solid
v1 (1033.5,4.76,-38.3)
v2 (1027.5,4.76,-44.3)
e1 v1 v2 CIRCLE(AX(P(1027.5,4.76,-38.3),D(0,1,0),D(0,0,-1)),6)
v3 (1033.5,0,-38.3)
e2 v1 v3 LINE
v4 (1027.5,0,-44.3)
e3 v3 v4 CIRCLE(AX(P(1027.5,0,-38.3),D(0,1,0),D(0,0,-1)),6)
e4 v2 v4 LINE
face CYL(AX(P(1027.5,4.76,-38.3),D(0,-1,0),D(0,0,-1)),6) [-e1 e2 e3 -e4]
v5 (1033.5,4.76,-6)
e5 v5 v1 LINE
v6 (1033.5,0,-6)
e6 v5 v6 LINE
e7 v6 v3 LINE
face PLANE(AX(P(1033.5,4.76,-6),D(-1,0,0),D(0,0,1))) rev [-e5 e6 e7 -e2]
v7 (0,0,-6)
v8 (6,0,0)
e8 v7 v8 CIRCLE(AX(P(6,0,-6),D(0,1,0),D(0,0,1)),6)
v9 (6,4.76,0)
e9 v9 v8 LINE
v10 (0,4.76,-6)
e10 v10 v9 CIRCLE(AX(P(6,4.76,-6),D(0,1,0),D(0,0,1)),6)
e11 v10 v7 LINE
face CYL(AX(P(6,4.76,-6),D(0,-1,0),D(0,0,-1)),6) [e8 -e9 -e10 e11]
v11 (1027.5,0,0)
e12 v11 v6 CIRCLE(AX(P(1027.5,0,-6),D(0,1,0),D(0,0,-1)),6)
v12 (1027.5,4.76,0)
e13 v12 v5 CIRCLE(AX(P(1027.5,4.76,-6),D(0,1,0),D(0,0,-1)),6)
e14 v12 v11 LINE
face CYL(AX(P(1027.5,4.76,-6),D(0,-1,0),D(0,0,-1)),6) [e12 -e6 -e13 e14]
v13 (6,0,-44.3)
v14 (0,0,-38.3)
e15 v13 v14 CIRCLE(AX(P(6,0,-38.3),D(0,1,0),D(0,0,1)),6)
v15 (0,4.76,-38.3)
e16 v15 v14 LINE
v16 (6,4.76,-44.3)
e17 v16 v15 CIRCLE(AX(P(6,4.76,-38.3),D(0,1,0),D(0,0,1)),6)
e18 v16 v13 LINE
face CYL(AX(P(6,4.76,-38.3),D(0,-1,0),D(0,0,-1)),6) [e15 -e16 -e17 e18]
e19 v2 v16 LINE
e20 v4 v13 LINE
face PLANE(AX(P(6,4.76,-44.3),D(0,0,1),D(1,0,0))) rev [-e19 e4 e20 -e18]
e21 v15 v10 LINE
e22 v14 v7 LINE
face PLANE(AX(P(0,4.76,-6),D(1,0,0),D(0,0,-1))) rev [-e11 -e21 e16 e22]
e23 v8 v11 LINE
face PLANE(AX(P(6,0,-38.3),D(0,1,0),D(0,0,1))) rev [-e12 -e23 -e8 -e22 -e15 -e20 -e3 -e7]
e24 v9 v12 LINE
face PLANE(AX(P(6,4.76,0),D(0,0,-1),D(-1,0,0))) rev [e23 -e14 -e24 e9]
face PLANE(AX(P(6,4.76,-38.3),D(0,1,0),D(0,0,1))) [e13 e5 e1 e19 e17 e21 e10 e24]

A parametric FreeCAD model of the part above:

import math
import FreeCAD as App
import Part
import Sketcher
Q = App.Units.Quantity

doc = App.newDocument("Part")
body = doc.addObject("PartDesign::Body", "Body")

# Sketch on XZ plane
sketch1 = body.newObject("Sketcher::SketchObject", "Sketch")
sketch1.AttachmentSupport = (doc.getObject("XZ_Plane"), [""])
sketch1.MapMode = "FlatFace"
sketch1.addGeometry(Part.LineSegment(App.Vector(6, 0, 0), App.Vector(1028, 0, 0)), False)
sketch1.addGeometry(Part.ArcOfCircle(Part.Circle(App.Vector(1028, -6, 0), App.Vector(0, 0, 1), 6), math.radians(0), math.radians(90)), False)
sketch1.addGeometry(Part.LineSegment(App.Vector(1034, -6, 0), App.Vector(1034, -38, 0)), False)
sketch1.addGeometry(Part.ArcOfCircle(Part.Circle(App.Vector(1028, -38, 0), App.Vector(0, 0, 1), 6), math.radians(-90), math.radians(0)), False)
sketch1.addGeometry(Part.LineSegment(App.Vector(1028, -44, 0), App.Vector(6, -44, 0)), False)
sketch1.addGeometry(Part.ArcOfCircle(Part.Circle(App.Vector(6, -38, 0), App.Vector(0, 0, 1), 6), math.radians(180), math.radians(270)), False)
sketch1.addGeometry(Part.LineSegment(App.Vector(0, -38, 0), App.Vector(0, -6, 0)), False)
sketch1.addGeometry(Part.ArcOfCircle(Part.Circle(App.Vector(6, -6, 0), App.Vector(0, 0, 1), 6), math.radians(90), math.radians(180)), False)
sketch1.addConstraint(Sketcher.Constraint("Tangent", 0, 2, 1, 2))
sketch1.addConstraint(Sketcher.Constraint("Tangent", 1, 1, 2, 1))
sketch1.addConstraint(Sketcher.Constraint("Tangent", 2, 2, 3, 2))
sketch1.addConstraint(Sketcher.Constraint("Tangent", 3, 1, 4, 1))
sketch1.addConstraint(Sketcher.Constraint("Tangent", 4, 2, 5, 2))
sketch1.addConstraint(Sketcher.Constraint("Tangent", 5, 1, 6, 1))
sketch1.addConstraint(Sketcher.Constraint("Tangent", 6, 2, 7, 2))
sketch1.addConstraint(Sketcher.Constraint("Tangent", 7, 1, 0, 1))
sketch1.addConstraint(Sketcher.Constraint("Horizontal", 0))
sketch1.addConstraint(Sketcher.Constraint("Vertical", 2))
sketch1.addConstraint(Sketcher.Constraint("Horizontal", 4))
sketch1.addConstraint(Sketcher.Constraint("Vertical", 6))
sketch1.addConstraint(Sketcher.Constraint("Equal", 1, 3))
sketch1.addConstraint(Sketcher.Constraint("Equal", 3, 5))
sketch1.addConstraint(Sketcher.Constraint("Equal", 5, 7))
sketch1.addConstraint(Sketcher.Constraint("PointOnObject", 0, 2, -1))
sketch1.addConstraint(Sketcher.Constraint("PointOnObject", 5, 1, -2))
sketch1.addConstraint(Sketcher.Constraint("Radius", 1, Q("6 mm")))
sketch1.addConstraint(Sketcher.Constraint("DistanceX", 0, 1, 0, 2, Q("1021.5 mm")))
sketch1.addConstraint(Sketcher.Constraint("DistanceY", 2, 2, 2, 1, Q("32.3 mm")))
pad1 = body.newObject("PartDesign::Pad", "Pad")
pad1.Profile = sketch1
pad1.Length = 4.76
pad1.Reversed = True

doc.recompute()
